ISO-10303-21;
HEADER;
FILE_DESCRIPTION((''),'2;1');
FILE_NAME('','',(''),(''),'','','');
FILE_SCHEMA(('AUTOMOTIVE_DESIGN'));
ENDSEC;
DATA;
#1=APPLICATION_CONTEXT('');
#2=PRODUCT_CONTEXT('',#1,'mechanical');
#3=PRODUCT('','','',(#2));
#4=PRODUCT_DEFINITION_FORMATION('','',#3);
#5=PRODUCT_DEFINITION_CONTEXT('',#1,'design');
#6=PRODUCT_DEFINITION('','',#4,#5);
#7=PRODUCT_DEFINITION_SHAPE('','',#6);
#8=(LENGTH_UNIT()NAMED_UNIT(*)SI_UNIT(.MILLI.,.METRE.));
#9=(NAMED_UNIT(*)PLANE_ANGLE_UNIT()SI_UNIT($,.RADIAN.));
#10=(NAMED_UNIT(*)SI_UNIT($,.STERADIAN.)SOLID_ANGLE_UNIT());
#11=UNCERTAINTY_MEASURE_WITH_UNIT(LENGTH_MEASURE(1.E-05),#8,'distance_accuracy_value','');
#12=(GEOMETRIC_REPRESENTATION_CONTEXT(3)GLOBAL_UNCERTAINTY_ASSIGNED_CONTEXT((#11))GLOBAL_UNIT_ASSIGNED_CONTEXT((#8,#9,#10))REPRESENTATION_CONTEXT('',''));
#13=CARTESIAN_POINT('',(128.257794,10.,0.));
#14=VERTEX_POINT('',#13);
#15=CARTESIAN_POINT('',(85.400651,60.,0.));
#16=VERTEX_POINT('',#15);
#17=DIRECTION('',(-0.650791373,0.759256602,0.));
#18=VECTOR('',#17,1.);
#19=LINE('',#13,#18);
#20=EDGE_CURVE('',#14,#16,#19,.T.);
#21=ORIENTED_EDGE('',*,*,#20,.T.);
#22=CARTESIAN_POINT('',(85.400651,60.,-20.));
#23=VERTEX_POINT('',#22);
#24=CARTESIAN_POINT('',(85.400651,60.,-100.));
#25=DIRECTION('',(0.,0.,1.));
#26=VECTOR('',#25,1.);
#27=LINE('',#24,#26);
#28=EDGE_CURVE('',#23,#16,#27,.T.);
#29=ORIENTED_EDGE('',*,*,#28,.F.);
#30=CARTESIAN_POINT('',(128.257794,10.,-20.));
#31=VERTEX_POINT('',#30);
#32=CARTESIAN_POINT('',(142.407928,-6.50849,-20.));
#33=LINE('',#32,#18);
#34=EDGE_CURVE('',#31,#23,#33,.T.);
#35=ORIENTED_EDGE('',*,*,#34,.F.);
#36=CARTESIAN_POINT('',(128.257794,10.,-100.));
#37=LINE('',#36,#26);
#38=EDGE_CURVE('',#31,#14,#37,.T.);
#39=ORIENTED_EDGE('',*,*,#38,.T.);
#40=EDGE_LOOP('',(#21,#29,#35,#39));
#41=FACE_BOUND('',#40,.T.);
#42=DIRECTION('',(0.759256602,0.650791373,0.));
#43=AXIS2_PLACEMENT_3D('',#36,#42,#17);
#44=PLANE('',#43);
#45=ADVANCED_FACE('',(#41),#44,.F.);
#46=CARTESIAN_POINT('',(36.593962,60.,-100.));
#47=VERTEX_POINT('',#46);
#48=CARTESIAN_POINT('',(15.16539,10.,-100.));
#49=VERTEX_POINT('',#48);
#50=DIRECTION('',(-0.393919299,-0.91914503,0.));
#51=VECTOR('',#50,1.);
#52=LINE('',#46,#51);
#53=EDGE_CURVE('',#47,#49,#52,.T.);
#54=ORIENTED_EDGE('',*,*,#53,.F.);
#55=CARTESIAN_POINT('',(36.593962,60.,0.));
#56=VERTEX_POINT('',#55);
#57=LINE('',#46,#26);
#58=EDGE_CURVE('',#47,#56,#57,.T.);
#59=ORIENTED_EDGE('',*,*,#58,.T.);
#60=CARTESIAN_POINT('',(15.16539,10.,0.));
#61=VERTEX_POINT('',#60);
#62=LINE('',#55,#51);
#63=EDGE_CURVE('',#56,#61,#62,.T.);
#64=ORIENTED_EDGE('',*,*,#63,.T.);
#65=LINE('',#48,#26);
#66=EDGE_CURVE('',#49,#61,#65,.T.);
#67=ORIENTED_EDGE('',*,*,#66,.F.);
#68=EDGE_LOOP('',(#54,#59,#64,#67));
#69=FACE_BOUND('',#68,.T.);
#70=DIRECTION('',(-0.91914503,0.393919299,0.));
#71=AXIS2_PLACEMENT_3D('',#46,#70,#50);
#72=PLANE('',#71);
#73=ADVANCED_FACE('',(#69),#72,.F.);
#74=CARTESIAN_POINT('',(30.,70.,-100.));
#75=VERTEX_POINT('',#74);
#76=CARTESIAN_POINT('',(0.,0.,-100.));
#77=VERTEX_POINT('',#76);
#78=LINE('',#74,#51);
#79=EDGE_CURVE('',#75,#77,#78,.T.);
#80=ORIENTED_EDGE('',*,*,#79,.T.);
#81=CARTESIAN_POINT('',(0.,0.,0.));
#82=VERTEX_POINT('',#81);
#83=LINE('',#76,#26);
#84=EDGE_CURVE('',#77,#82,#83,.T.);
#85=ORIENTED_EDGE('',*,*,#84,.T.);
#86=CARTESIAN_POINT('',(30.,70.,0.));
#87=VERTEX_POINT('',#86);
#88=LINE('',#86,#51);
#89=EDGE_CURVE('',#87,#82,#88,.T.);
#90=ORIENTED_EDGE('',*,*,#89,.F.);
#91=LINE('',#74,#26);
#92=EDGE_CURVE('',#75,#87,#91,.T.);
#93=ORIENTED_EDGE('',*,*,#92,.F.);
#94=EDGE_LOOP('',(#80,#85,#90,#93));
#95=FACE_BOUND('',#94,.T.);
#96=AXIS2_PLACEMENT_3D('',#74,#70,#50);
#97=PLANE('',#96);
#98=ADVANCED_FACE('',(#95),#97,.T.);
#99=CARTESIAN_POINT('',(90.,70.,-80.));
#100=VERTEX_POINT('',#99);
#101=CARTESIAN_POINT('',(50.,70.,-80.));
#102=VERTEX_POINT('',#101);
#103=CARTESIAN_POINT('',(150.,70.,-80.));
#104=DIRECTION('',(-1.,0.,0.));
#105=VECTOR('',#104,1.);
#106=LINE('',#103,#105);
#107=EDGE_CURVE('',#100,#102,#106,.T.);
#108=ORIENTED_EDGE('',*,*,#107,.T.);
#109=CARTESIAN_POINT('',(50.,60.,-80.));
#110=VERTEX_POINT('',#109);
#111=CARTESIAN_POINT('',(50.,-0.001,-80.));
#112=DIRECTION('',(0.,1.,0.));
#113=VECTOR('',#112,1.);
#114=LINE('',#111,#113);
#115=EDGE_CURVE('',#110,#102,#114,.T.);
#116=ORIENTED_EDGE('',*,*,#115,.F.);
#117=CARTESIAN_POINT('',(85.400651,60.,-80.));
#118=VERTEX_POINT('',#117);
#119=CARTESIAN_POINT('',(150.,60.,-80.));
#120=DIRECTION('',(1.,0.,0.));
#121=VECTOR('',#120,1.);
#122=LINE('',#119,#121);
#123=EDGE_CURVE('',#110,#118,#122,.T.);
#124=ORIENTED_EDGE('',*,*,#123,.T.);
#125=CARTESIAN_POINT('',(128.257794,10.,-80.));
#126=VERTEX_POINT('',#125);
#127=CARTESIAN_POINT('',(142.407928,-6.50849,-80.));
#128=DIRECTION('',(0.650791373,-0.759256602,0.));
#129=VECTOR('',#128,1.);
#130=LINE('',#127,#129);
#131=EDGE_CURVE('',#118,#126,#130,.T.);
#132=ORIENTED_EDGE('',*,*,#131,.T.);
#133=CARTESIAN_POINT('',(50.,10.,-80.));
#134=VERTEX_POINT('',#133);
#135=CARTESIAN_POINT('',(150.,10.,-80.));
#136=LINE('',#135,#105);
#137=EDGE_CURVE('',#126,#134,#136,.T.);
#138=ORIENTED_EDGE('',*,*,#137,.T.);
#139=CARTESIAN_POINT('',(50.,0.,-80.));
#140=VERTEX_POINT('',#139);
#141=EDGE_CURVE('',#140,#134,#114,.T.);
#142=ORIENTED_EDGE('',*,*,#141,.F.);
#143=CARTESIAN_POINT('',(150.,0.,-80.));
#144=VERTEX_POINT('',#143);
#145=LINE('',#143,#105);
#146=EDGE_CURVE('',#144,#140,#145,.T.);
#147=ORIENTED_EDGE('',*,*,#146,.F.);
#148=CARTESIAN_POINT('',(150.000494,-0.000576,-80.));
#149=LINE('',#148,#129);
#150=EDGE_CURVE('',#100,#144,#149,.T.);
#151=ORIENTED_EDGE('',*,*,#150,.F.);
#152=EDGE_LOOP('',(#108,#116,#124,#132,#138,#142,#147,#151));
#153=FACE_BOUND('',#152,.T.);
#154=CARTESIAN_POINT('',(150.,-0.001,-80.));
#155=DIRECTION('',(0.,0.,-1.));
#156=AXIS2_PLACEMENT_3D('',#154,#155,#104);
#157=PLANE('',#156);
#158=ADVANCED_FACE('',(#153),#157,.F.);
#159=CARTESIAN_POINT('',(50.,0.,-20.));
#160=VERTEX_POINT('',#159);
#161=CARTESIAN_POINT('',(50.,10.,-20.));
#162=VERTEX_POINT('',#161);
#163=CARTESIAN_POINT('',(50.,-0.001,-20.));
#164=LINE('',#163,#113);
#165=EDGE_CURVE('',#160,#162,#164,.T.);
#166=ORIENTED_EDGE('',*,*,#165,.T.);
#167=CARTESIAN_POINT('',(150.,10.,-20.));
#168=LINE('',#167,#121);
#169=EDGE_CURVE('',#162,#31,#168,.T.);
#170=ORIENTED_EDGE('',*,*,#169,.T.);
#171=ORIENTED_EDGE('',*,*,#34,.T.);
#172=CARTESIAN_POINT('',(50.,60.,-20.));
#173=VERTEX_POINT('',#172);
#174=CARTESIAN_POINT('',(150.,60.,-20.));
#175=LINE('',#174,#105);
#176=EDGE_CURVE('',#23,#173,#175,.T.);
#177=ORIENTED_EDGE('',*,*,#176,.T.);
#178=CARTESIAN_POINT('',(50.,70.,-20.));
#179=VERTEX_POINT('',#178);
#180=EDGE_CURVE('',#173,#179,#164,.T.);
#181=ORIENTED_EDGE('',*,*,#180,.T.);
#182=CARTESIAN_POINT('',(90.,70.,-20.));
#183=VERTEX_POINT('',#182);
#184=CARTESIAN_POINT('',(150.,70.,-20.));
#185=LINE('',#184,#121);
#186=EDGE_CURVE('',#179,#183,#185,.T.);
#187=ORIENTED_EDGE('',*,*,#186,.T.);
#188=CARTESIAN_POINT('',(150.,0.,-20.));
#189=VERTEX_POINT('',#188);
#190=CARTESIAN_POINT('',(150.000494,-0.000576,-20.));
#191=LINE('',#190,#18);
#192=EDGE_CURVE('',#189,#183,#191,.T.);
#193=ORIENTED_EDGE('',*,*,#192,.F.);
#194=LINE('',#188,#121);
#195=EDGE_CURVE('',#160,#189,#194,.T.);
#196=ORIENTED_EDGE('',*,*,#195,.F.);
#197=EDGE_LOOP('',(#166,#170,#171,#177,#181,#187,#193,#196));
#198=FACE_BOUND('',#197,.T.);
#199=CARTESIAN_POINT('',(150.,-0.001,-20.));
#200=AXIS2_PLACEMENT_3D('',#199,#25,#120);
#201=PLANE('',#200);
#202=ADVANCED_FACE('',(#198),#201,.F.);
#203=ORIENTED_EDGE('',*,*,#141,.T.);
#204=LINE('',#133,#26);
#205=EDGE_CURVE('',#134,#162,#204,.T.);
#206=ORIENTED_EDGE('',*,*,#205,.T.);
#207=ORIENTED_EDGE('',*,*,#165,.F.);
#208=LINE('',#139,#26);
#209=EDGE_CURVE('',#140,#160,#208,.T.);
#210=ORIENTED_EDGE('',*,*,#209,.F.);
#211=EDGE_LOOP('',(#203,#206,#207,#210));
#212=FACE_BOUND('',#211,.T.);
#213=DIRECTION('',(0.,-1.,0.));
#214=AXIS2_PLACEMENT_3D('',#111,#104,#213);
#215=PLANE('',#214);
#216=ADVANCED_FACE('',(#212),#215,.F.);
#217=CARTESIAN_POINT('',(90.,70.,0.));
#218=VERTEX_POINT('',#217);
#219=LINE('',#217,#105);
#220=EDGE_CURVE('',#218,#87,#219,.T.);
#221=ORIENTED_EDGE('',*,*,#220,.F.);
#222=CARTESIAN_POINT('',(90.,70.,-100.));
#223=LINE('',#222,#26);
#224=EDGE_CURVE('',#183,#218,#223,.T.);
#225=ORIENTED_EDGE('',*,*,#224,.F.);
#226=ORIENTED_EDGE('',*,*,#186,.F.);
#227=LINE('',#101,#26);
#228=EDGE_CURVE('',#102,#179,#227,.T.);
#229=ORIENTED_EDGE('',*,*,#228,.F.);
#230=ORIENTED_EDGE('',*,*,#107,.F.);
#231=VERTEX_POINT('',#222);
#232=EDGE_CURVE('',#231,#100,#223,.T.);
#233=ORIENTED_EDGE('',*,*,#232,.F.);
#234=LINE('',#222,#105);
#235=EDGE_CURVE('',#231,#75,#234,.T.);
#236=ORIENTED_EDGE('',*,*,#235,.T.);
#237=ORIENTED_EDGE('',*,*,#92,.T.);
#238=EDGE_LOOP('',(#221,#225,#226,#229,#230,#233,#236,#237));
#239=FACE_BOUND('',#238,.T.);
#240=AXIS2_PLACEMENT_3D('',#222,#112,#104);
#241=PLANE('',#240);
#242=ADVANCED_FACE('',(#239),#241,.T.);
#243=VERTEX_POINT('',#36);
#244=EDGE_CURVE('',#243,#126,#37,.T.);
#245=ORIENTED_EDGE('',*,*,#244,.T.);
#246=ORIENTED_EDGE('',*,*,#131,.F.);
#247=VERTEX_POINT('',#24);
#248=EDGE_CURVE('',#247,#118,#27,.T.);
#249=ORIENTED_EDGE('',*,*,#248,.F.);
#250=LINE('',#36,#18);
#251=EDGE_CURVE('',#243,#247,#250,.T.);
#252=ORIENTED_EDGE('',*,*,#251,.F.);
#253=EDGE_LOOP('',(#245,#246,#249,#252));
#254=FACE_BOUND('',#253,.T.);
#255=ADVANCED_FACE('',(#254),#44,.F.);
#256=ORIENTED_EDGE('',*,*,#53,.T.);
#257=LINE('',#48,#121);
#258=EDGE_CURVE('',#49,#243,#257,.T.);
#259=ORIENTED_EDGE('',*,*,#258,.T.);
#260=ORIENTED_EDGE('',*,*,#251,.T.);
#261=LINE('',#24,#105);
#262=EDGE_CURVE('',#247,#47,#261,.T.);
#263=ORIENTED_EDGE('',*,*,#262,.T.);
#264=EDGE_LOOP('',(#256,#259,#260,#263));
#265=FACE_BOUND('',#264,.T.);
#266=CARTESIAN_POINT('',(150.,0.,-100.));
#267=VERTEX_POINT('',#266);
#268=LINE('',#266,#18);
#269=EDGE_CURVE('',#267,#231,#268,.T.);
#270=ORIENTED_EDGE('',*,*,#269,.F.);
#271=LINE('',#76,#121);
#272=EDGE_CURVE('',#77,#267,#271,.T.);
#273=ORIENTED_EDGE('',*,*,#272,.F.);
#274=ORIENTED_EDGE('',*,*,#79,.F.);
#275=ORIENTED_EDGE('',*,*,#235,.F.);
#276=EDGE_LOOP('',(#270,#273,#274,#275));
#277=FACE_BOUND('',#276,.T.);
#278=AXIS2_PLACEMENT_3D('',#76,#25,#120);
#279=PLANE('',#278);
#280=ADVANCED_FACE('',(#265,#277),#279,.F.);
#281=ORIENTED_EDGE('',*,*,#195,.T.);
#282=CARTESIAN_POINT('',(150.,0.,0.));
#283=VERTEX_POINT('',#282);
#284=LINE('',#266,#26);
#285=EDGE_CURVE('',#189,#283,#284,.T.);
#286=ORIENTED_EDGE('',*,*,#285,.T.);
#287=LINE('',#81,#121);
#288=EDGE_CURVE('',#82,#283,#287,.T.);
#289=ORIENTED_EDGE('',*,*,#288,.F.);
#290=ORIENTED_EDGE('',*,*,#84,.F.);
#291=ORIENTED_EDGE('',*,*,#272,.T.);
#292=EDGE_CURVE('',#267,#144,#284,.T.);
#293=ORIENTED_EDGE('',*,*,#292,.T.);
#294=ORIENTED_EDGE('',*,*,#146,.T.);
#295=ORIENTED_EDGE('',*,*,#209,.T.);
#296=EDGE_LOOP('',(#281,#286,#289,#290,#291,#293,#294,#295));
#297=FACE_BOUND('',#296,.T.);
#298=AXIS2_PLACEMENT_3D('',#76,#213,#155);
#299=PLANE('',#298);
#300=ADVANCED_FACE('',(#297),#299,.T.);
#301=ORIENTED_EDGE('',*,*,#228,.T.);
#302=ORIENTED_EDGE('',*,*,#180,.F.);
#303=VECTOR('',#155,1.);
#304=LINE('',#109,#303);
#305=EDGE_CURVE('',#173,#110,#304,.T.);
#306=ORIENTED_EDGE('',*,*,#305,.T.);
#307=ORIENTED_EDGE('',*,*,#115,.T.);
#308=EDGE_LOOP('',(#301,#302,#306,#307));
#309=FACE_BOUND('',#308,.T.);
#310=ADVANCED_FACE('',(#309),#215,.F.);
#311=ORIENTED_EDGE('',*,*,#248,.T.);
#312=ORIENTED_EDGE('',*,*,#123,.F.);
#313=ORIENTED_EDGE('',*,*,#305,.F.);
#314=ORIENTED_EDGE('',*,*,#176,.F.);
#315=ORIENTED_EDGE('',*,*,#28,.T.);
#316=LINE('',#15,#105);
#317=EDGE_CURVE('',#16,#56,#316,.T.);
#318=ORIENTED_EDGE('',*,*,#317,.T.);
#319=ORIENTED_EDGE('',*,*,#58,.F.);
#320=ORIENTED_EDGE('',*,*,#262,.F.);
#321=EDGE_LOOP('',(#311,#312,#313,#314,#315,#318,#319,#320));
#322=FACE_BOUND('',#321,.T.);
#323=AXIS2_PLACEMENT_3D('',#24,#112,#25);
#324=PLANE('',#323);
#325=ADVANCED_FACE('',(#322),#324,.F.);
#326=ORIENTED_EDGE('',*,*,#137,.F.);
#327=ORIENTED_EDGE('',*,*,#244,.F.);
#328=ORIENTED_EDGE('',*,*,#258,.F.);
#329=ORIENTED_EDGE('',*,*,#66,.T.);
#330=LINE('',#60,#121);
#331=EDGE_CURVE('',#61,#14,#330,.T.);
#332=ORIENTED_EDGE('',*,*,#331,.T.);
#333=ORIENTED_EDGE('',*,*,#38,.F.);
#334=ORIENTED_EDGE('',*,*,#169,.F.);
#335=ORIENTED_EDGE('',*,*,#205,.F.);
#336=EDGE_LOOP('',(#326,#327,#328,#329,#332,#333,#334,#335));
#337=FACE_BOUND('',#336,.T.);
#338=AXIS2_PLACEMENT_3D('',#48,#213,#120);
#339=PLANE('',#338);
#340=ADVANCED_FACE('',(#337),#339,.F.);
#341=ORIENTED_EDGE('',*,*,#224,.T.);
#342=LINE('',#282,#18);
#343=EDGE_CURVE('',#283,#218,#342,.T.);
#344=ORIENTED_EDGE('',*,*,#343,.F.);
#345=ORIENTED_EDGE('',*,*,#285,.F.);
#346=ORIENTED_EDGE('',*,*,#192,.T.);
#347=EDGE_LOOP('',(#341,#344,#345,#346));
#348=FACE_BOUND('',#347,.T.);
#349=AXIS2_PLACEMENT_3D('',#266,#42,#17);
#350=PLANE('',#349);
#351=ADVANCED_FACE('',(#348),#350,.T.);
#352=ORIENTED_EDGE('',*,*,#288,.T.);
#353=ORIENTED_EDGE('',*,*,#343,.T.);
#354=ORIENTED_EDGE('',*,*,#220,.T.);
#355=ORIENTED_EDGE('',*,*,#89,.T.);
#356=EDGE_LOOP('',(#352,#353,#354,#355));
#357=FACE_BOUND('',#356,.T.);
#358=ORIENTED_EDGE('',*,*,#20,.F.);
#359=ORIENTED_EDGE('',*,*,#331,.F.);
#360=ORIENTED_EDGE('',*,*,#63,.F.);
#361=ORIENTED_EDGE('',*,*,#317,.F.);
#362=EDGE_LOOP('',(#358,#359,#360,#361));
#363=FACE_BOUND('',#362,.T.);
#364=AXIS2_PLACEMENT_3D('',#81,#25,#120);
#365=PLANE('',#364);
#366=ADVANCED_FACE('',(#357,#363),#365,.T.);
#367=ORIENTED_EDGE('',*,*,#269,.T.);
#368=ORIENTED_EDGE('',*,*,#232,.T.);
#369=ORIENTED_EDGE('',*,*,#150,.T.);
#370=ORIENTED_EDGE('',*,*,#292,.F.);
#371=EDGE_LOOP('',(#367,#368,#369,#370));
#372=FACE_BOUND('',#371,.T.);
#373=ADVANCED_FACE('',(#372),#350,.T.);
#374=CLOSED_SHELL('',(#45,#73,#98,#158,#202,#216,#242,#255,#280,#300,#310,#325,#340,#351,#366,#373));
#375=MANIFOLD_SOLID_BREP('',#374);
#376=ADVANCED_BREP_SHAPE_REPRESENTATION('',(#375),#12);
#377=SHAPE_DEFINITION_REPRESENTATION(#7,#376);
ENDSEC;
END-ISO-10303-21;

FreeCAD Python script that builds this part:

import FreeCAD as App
import Part
import Sketcher

V = App.Vector
Q = App.Units.Quantity


def add_polygon(sketch, points):
    """Adds a closed chain of lines whose ends are joined by coincident constraints."""
    first, n = sketch.GeometryCount, len(points)
    for a, b in zip(points, points[1:] + points[:1]):
        sketch.addGeometry(Part.LineSegment(App.Vector(*a, 0), App.Vector(*b, 0)), False)
    for i in range(n):
        sketch.addConstraint(Sketcher.Constraint("Coincident", first + i, 2, first + (i + 1) % n, 1))

doc = App.newDocument("Part")
params = doc.addObject("Spreadsheet::Sheet", "Params")
for row, (alias, value) in enumerate([
    ("sketch1_width", "150 mm"),
    ("sketch1_width2", "60 mm"),
    ("pad1_length", "100 mm"),
    ("sketch2_width", "100 mm"),
    ("sketch2_height", "60 mm"),
    ("pocket1_length", "70 mm"),
], start=1):
    params.set(f"A{row}", alias)
    params.set(f"B{row}", "=" + value)
    params.setAlias(f"B{row}", alias)

body = doc.addObject("PartDesign::Body", "Body")

# Sketch on XY plane
sketch1 = doc.addObject("Sketcher::SketchObject", "Sketch")
body.addObject(sketch1)
sketch1.AttachmentSupport = (doc.XY_Plane, [""])
sketch1.MapMode = "FlatFace"
add_polygon(sketch1, [(0, 0), (150, 0), (90, 70), (30, 70)])  # lines 0-3
add_polygon(sketch1, [(15, 10), (37, 60), (85, 60), (128, 10)])  # lines 4-7
sketch1.addConstraint(Sketcher.Constraint("Horizontal", 0))
sketch1.addConstraint(Sketcher.Constraint("Horizontal", 2))
sketch1.addConstraint(Sketcher.Constraint("Horizontal", 5))
sketch1.addConstraint(Sketcher.Constraint("Horizontal", 7))
sketch1.addConstraint(Sketcher.Constraint("Coincident", 3, 2, -1, 1))
sketch1.addConstraint(Sketcher.Constraint("Parallel", 3, 4))
sketch1.addConstraint(Sketcher.Constraint("Parallel", 1, 6))
sketch1.addConstraint(Sketcher.Constraint("DistanceX", 0, 1, 0, 2, Q("150 mm")))
sketch1.addConstraint(Sketcher.Constraint("DistanceX", 2, 2, 2, 1, Q("60 mm")))
sketch1.addConstraint(Sketcher.Constraint("DistanceX", -1, 1, 1, 2, Q("90 mm")))
sketch1.addConstraint(Sketcher.Constraint("DistanceY", -1, 1, 1, 2, Q("70 mm")))
sketch1.addConstraint(Sketcher.Constraint("DistanceY", -1, 1, 4, 2, Q("60 mm")))
sketch1.addConstraint(Sketcher.Constraint("DistanceY", -1, 1, 6, 2, Q("10 mm")))
sketch1.addConstraint(Sketcher.Constraint("DistanceX", 5, 1, 5, 2, Q("48.806689 mm")))
sketch1.addConstraint(Sketcher.Constraint("DistanceX", -1, 1, 4, 2, Q("36.593962 mm")))
sketch1.setExpression("Constraints[15]", "Params.sketch1_width")
sketch1.setExpression("Constraints[16]", "Params.sketch1_width2")
pad1 = doc.addObject("PartDesign::Pad", "Pad")
body.addObject(pad1)
pad1.Profile = sketch1
pad1.setExpression("Length", "Params.pad1_length")
pad1.Reversed = True

# Sketch on XZ plane
sketch2 = doc.addObject("Sketcher::SketchObject", "Sketch001")
body.addObject(sketch2)
sketch2.AttachmentSupport = (doc.XZ_Plane, [""])
sketch2.MapMode = "FlatFace"
sketch2.AttachmentOffset = App.Placement(V(0, 0, -70), App.Rotation())
add_polygon(sketch2, [(50, -80), (50, -20), (150, -20), (150, -80)])  # lines 0-3
sketch2.addConstraint(Sketcher.Constraint("Vertical", 0))
sketch2.addConstraint(Sketcher.Constraint("Horizontal", 1))
sketch2.addConstraint(Sketcher.Constraint("Vertical", 2))
sketch2.addConstraint(Sketcher.Constraint("Horizontal", 3))
sketch2.addConstraint(Sketcher.Constraint("DistanceX", 1, 1, 1, 2, Q("100 mm")))
sketch2.addConstraint(Sketcher.Constraint("DistanceY", 0, 1, 0, 2, Q("60 mm")))
sketch2.addConstraint(Sketcher.Constraint("DistanceX", -1, 1, 0, 2, Q("50 mm")))
sketch2.addConstraint(Sketcher.Constraint("DistanceY", 0, 2, -1, 1, Q("20 mm")))
sketch2.setExpression("Constraints[8]", "Params.sketch2_width")
sketch2.setExpression("Constraints[9]", "Params.sketch2_height")
pocket1 = doc.addObject("PartDesign::Pocket", "Pocket")
body.addObject(pocket1)
pocket1.Profile = sketch2
pocket1.setExpression("Length", "Params.pocket1_length")
pocket1.Reversed = True

doc.recompute()
